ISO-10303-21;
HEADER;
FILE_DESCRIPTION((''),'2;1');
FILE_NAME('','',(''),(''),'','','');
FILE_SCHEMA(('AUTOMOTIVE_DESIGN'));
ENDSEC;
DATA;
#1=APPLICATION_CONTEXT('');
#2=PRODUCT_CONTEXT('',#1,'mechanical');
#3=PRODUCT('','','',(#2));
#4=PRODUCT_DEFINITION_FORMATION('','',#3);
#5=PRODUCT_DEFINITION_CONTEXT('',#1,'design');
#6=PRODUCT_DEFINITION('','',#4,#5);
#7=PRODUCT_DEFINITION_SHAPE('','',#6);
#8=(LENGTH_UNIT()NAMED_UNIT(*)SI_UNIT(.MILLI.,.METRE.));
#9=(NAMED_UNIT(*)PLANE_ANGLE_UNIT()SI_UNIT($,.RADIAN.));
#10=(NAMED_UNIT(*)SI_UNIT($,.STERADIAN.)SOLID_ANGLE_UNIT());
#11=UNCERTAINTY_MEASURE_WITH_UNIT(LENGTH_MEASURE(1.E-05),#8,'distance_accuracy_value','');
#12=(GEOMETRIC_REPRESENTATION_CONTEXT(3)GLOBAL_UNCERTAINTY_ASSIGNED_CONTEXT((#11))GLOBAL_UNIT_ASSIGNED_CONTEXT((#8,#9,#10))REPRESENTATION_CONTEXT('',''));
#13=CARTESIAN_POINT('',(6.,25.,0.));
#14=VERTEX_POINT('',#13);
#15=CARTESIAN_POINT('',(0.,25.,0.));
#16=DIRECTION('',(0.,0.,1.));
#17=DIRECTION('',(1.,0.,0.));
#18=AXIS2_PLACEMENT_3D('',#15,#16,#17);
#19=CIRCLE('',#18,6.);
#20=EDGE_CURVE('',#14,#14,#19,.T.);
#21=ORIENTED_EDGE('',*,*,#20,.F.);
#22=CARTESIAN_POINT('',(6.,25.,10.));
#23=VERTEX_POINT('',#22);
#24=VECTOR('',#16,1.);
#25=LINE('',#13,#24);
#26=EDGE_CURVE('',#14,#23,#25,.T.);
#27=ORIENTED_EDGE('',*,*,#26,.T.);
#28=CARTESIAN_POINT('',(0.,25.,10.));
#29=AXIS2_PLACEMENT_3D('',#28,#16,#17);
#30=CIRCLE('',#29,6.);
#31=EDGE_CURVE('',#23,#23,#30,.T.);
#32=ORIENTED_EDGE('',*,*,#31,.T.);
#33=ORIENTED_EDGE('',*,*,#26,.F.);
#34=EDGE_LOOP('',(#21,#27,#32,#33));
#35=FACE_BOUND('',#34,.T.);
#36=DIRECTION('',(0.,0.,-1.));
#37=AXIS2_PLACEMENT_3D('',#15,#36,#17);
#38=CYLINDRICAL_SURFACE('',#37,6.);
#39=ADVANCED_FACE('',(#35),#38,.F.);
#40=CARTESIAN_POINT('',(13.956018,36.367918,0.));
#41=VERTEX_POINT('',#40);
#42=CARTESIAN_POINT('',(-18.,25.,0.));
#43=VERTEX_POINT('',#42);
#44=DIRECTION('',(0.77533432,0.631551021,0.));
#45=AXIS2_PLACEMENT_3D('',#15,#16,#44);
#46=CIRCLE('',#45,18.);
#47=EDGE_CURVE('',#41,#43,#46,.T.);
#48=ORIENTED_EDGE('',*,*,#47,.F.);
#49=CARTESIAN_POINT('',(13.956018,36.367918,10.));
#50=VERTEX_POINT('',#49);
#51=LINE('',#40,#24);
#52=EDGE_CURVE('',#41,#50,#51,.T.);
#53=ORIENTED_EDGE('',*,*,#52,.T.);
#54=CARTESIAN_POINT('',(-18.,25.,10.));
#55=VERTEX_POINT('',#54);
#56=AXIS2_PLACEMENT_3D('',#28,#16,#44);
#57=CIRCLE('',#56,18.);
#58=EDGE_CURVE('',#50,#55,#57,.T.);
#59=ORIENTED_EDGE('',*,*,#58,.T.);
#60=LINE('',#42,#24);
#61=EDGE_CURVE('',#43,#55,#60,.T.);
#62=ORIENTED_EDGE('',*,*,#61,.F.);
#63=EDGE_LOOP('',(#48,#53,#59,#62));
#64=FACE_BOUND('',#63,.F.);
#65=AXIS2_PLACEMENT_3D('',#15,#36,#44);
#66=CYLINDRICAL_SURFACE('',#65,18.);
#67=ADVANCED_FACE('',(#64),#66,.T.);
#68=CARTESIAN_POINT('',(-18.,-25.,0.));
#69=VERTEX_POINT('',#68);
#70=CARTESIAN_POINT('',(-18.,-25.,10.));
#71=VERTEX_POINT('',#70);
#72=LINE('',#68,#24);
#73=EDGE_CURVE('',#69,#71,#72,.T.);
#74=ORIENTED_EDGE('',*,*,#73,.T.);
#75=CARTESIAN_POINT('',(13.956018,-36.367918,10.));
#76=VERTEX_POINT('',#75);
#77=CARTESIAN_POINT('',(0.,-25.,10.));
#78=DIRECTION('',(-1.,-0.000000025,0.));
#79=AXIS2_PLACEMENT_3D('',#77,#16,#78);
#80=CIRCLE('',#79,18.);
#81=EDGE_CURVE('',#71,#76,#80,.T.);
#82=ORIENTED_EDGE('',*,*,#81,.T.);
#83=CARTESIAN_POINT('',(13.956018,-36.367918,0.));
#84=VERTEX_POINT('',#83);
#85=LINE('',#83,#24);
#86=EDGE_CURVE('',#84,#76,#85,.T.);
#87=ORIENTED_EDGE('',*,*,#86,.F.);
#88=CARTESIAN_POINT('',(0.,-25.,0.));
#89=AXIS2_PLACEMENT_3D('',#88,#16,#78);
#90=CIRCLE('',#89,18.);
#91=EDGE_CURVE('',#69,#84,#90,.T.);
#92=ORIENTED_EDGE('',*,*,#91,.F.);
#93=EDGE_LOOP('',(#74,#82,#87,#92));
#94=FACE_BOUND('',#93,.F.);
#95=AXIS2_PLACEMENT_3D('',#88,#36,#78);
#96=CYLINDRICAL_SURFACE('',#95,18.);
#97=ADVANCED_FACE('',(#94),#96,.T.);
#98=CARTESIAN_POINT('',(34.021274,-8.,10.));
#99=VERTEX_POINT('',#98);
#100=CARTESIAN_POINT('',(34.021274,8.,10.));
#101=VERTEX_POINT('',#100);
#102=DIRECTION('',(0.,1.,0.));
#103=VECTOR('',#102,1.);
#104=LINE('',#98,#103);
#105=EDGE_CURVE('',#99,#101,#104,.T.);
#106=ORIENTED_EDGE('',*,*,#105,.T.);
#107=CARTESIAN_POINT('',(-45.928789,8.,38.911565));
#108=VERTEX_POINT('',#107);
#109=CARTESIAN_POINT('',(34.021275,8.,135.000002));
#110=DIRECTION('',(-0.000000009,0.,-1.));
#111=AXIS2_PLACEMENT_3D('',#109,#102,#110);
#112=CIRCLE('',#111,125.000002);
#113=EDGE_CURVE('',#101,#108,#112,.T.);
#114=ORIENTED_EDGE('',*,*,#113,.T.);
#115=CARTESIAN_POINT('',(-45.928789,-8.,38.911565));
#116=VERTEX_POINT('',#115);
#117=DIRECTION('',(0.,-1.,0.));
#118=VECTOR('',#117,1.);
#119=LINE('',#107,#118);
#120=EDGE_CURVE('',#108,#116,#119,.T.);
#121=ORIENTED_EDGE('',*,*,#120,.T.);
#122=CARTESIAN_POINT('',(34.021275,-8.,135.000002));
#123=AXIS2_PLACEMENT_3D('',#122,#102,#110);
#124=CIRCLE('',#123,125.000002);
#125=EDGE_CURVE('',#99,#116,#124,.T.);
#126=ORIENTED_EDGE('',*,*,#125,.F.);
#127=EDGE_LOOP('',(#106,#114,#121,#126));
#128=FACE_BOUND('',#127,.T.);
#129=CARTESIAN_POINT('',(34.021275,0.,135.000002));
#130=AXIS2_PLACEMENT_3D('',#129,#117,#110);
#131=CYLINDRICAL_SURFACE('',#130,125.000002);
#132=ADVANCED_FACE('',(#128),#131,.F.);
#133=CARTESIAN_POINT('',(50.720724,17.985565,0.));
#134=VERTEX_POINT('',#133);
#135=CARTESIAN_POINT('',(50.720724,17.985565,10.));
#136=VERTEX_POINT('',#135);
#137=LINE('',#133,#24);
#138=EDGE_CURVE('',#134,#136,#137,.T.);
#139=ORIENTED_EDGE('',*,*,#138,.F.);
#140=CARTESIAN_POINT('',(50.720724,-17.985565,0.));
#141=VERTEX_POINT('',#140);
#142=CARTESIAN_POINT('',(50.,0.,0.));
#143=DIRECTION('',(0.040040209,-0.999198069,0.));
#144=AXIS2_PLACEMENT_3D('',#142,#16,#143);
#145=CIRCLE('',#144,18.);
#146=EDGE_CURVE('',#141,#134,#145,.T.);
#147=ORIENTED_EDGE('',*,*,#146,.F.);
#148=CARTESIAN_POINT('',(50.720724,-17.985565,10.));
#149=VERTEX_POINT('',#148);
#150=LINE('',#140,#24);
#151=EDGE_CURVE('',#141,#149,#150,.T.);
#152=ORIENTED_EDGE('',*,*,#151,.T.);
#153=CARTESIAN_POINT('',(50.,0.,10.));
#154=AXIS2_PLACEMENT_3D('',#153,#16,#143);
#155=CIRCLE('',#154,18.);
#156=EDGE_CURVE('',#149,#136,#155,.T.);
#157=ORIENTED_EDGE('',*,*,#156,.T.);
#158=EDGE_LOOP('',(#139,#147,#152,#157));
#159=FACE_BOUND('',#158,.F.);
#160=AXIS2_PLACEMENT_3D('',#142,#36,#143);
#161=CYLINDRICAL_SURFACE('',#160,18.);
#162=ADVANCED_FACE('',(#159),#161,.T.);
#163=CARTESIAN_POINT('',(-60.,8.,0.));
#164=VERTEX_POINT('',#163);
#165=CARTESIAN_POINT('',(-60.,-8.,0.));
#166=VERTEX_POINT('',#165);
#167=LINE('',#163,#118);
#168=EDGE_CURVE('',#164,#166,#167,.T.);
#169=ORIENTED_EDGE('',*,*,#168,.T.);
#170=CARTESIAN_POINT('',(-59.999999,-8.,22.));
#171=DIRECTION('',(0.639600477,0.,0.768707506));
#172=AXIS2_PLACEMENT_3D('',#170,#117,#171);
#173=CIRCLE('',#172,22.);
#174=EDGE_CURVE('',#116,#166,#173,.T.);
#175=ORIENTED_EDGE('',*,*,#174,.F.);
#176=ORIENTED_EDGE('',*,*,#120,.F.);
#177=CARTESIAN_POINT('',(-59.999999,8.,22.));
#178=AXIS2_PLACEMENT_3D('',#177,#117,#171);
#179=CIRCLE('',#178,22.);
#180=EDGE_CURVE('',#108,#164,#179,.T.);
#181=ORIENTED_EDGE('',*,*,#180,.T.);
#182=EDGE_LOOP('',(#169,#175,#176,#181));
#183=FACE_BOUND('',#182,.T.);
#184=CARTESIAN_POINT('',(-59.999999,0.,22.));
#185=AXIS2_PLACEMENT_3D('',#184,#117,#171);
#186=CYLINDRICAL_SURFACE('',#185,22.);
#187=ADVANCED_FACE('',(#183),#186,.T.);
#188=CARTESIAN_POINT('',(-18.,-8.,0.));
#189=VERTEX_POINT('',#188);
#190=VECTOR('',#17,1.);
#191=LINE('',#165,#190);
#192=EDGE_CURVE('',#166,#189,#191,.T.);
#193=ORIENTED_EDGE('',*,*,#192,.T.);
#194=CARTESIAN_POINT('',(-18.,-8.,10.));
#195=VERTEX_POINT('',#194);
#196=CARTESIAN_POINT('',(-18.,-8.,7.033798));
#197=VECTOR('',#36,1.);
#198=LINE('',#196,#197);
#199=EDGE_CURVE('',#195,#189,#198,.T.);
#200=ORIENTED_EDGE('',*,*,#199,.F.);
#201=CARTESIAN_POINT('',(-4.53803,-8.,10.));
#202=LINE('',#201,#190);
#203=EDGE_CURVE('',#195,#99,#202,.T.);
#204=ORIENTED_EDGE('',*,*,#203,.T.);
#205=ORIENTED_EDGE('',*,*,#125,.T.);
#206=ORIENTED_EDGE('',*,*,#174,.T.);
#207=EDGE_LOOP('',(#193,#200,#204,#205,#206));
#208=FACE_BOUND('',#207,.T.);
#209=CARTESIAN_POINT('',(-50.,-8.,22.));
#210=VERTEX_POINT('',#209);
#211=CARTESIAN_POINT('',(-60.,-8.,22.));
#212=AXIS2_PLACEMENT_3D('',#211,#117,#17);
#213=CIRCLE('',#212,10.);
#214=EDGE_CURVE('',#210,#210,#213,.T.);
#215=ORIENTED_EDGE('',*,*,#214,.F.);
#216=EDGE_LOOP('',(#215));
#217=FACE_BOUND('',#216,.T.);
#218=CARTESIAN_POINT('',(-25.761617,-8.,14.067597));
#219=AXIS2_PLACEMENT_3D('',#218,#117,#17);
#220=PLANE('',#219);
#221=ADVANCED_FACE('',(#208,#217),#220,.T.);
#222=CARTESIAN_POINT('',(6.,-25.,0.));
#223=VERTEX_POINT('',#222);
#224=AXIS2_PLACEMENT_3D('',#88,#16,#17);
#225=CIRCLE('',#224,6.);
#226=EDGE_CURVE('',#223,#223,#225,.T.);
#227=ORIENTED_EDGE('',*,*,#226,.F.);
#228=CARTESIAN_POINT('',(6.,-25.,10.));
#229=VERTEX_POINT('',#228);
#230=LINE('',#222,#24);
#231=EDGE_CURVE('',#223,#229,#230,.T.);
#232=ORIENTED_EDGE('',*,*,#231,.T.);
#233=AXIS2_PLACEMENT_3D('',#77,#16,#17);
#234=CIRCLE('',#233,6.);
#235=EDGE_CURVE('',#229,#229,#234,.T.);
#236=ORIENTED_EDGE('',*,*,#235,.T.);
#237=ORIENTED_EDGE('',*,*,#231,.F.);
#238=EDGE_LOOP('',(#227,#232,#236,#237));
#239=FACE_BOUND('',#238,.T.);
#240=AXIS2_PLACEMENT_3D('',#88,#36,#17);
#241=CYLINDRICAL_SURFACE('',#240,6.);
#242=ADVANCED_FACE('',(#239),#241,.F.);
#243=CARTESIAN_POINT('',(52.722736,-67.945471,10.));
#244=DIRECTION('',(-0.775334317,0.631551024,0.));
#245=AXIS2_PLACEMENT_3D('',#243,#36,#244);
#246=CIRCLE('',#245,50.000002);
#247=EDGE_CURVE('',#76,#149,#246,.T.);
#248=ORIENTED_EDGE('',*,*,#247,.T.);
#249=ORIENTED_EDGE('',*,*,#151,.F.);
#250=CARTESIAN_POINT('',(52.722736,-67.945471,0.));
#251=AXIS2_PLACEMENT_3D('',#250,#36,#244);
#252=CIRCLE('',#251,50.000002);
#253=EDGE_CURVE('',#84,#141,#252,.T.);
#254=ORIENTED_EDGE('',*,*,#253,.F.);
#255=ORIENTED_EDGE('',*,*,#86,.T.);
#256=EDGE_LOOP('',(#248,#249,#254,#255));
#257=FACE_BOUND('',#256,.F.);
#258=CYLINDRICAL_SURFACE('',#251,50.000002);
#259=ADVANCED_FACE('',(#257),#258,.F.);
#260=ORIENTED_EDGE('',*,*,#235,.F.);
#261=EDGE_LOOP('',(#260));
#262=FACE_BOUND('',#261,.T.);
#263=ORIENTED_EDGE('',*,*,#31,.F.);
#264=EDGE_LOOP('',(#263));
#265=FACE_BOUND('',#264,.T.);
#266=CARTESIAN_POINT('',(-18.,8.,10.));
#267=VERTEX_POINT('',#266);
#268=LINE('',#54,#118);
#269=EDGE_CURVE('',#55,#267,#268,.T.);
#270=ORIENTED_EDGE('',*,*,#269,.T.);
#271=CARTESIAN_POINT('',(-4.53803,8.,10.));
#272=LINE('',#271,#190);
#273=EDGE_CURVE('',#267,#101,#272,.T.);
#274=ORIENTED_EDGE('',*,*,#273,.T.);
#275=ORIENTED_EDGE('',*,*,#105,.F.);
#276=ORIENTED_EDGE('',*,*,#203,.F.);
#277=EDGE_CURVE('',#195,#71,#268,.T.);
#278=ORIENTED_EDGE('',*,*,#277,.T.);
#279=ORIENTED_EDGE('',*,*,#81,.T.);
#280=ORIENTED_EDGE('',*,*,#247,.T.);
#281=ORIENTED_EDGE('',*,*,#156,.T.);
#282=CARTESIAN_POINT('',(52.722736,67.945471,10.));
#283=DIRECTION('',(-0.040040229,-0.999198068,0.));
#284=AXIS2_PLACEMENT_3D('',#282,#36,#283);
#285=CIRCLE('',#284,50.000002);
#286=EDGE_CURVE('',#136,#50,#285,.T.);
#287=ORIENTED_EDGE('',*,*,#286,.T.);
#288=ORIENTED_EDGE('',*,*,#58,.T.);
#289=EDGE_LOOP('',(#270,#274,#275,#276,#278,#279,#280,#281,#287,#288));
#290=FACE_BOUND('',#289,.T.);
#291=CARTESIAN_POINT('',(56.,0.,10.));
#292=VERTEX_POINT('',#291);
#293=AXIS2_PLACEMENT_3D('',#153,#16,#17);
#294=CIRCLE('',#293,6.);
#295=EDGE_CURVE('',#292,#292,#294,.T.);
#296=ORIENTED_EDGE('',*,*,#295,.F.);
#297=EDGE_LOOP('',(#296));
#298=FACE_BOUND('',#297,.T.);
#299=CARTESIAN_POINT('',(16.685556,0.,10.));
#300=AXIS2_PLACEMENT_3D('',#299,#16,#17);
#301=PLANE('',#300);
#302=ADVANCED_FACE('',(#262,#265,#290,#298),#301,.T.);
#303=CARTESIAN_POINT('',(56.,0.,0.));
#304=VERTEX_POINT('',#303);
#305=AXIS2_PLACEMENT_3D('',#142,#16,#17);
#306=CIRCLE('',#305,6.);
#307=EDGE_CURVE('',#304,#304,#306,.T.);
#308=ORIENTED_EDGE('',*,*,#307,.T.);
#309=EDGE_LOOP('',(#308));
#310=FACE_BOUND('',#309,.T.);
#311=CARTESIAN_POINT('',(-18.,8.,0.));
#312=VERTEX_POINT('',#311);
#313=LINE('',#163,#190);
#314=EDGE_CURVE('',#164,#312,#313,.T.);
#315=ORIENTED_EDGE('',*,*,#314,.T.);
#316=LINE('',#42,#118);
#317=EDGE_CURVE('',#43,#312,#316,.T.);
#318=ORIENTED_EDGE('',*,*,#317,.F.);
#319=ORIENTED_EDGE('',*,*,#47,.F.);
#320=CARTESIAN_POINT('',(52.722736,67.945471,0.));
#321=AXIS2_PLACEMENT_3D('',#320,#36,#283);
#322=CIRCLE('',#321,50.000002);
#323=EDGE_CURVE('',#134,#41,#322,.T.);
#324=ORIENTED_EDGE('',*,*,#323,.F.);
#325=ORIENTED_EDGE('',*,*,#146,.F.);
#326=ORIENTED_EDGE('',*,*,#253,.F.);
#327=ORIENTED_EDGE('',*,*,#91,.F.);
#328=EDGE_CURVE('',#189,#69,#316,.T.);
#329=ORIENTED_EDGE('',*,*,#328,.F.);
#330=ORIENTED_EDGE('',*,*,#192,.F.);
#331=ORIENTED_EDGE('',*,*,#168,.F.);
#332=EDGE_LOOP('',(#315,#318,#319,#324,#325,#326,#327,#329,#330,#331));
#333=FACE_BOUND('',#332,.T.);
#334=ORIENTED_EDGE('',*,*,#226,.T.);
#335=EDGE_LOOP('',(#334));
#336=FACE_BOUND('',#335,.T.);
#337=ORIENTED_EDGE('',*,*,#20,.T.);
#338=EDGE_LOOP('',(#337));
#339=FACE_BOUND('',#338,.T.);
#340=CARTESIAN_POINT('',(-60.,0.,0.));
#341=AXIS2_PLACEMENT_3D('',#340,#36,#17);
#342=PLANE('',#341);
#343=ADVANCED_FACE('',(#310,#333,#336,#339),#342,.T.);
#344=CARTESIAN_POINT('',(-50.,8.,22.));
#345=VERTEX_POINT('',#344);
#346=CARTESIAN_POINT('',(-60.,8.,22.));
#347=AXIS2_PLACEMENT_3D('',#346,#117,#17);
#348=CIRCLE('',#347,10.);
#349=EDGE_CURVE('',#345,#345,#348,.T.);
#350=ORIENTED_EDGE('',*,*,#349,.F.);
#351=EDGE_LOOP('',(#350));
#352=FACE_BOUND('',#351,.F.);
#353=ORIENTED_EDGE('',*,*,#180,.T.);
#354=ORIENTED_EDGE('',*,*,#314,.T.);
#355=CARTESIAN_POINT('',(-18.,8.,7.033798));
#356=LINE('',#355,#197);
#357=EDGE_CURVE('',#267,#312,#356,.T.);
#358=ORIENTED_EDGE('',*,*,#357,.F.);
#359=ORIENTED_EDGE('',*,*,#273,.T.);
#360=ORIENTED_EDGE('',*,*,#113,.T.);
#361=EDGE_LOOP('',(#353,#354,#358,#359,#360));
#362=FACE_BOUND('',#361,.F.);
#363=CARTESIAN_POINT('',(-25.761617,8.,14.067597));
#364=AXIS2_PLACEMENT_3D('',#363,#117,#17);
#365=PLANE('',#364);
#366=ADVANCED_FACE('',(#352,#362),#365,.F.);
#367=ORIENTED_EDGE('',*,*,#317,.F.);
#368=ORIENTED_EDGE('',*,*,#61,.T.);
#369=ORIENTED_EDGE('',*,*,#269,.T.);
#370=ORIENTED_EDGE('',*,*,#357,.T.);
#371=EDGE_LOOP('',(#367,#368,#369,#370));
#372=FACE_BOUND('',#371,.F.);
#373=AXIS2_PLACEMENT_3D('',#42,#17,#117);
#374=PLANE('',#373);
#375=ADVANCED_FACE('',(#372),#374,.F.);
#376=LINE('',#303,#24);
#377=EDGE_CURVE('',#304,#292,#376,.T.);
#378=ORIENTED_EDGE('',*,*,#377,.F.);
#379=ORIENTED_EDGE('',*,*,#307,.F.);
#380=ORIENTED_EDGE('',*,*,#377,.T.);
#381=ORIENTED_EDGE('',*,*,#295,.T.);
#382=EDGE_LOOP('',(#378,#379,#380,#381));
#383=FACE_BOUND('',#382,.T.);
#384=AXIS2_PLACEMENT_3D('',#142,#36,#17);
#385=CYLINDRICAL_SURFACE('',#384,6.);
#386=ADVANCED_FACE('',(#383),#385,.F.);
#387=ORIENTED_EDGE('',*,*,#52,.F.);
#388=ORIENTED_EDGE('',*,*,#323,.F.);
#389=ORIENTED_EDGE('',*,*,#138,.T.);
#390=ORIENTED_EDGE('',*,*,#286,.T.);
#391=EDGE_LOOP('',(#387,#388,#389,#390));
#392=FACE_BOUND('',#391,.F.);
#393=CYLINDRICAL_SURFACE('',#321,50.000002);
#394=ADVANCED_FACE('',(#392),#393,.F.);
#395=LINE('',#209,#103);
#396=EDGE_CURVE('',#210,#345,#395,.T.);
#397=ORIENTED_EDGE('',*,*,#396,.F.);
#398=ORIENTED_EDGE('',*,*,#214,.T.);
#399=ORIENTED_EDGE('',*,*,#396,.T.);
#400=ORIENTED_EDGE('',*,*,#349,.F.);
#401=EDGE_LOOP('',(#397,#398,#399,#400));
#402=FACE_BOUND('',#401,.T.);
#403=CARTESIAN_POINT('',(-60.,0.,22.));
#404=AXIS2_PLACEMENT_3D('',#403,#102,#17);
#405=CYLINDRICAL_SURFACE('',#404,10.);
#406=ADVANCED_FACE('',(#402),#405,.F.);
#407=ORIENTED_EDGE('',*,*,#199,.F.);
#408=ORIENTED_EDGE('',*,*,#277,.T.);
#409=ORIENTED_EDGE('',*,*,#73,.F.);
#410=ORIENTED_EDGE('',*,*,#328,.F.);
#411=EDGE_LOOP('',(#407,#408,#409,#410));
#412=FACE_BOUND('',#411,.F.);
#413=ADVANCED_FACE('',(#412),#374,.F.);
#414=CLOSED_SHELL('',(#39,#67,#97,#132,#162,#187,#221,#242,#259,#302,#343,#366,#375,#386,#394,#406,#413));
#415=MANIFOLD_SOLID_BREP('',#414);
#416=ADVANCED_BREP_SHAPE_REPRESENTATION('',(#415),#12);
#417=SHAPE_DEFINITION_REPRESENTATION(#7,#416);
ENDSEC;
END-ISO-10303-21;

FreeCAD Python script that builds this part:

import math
import FreeCAD as App
import Part
import Sketcher
Q = App.Units.Quantity

doc = App.newDocument("Part")
body = doc.addObject("PartDesign::Body", "Body")

# Sketch on XY plane
sketch1 = body.newObject("Sketcher::SketchObject", "Sketch")
sketch1.AttachmentSupport = (doc.getObject("XY_Plane"), [""])
sketch1.MapMode = "FlatFace"
sketch1.addGeometry([
    Part.ArcOfCircle(Part.Circle(App.Vector(52.722736, 67.945471, 0), App.Vector(0, 0, 1), 50.000002), math.radians(-140.835353), math.radians(-92.29475)),  # 0
    Part.ArcOfCircle(Part.Circle(App.Vector(0, 25, 0), App.Vector(0, 0, 1), 18), math.radians(39.164647), math.radians(179.999999)),  # 1
    Part.LineSegment(App.Vector(-18, 25, 0), App.Vector(-18, -25, 0)),  # 2
    Part.ArcOfCircle(Part.Circle(App.Vector(0, -25, 0), App.Vector(0, 0, 1), 18), math.radians(-179.999999), math.radians(-39.164647)),  # 3
    Part.ArcOfCircle(Part.Circle(App.Vector(52.722736, -67.945471, 0), App.Vector(0, 0, 1), 50.000002), math.radians(92.29475), math.radians(140.835353)),  # 4
    Part.ArcOfCircle(Part.Circle(App.Vector(50, 0, 0), App.Vector(0, 0, 1), 18), math.radians(-87.705252), math.radians(87.705252)),  # 5
    Part.Circle(App.Vector(0, -25, 0), App.Vector(0, 0, 1), 6),  # 6
    Part.Circle(App.Vector(0, 25, 0), App.Vector(0, 0, 1), 6),  # 7
    Part.Circle(App.Vector(50, 0, 0), App.Vector(0, 0, 1), 6),  # 8
], False)
sketch1.addConstraint([
    Sketcher.Constraint("Tangent", 0, 1, 1, 1),
    Sketcher.Constraint("Tangent", 1, 2, 2, 1),
    Sketcher.Constraint("Tangent", 2, 2, 3, 1),
    Sketcher.Constraint("Tangent", 3, 2, 4, 2),
    Sketcher.Constraint("Tangent", 4, 1, 5, 1),
    Sketcher.Constraint("Tangent", 5, 2, 0, 2),
    Sketcher.Constraint("Vertical", 2),
    Sketcher.Constraint("Coincident", 6, 3, 3, 3),
    Sketcher.Constraint("Coincident", 7, 3, 1, 3),
    Sketcher.Constraint("Coincident", 8, 3, 5, 3),
    Sketcher.Constraint("Equal", 1, 3),
    Sketcher.Constraint("Equal", 0, 4),
    Sketcher.Constraint("Equal", 3, 5),
    Sketcher.Constraint("Equal", 6, 7),
    Sketcher.Constraint("Equal", 7, 8),
    Sketcher.Constraint("Symmetric", 1, 3, 3, 3, -1, 1),
    Sketcher.Constraint("PointOnObject", 5, 3, -1),
    Sketcher.Constraint("Diameter", 6, Q("12 mm")),
    Sketcher.Constraint("Radius", 1, Q("18 mm")),
    Sketcher.Constraint("DistanceY", 2, 2, 2, 1, Q("50 mm")),
    Sketcher.Constraint("DistanceX", -1, 1, 5, 3, Q("50 mm")),
    Sketcher.Constraint("Radius", 0, Q("50.000002 mm")),
])
pad1 = body.newObject("PartDesign::Pad", "Pad")
pad1.Profile = sketch1
pad1.Length = 10

# Sketch on XZ plane
sketch2 = body.newObject("Sketcher::SketchObject", "Sketch001")
sketch2.AttachmentSupport = (doc.getObject("XZ_Plane"), [""])
sketch2.MapMode = "FlatFace"
sketch2.addGeometry([
    Part.ArcOfCircle(Part.Circle(App.Vector(34.021275, 135.000002, 0), App.Vector(0, 0, 1), 125.000002), math.radians(-129.762037), math.radians(-90.000001)),  # 0
    Part.ArcOfCircle(Part.Circle(App.Vector(-59.999999, 22, 0), App.Vector(0, 0, 1), 22), math.radians(50.237965), math.radians(269.999999)),  # 1
    Part.LineSegment(App.Vector(-60, 0, 0), App.Vector(34.021274, 0, 0)),  # 2
    Part.LineSegment(App.Vector(34.021274, 0, 0), App.Vector(34.021274, 10, 0)),  # 3
    Part.Circle(App.Vector(-60, 22, 0), App.Vector(0, 0, 1), 10),  # 4
], False)
sketch2.addConstraint([
    Sketcher.Constraint("Tangent", 0, 1, 1, 1),
    Sketcher.Constraint("Tangent", 1, 2, 2, 1),
    Sketcher.Constraint("Coincident", 2, 2, 3, 1),
    Sketcher.Constraint("Coincident", 3, 2, 0, 2),
    Sketcher.Constraint("Horizontal", 2),
    Sketcher.Constraint("Vertical", 3),
    Sketcher.Constraint("Coincident", 4, 3, 1, 3),
    Sketcher.Constraint("PointOnObject", 1, 2, -1),
    Sketcher.Constraint("Vertical", 0, 3, 2, 2),
    Sketcher.Constraint("Diameter", 4, Q("20 mm")),
    Sketcher.Constraint("Radius", 0, Q("125.000002 mm")),
    Sketcher.Constraint("Radius", 1, Q("22 mm")),
    Sketcher.Constraint("DistanceY", 3, 1, 3, 2, Q("10 mm")),
    Sketcher.Constraint("DistanceX", 1, 3, -1, 1, Q("59.999999 mm")),
])
pad2 = body.newObject("PartDesign::Pad", "Pad001")
pad2.Profile = sketch2
pad2.Length = 16
pad2.Midplane = True

doc.recompute()
